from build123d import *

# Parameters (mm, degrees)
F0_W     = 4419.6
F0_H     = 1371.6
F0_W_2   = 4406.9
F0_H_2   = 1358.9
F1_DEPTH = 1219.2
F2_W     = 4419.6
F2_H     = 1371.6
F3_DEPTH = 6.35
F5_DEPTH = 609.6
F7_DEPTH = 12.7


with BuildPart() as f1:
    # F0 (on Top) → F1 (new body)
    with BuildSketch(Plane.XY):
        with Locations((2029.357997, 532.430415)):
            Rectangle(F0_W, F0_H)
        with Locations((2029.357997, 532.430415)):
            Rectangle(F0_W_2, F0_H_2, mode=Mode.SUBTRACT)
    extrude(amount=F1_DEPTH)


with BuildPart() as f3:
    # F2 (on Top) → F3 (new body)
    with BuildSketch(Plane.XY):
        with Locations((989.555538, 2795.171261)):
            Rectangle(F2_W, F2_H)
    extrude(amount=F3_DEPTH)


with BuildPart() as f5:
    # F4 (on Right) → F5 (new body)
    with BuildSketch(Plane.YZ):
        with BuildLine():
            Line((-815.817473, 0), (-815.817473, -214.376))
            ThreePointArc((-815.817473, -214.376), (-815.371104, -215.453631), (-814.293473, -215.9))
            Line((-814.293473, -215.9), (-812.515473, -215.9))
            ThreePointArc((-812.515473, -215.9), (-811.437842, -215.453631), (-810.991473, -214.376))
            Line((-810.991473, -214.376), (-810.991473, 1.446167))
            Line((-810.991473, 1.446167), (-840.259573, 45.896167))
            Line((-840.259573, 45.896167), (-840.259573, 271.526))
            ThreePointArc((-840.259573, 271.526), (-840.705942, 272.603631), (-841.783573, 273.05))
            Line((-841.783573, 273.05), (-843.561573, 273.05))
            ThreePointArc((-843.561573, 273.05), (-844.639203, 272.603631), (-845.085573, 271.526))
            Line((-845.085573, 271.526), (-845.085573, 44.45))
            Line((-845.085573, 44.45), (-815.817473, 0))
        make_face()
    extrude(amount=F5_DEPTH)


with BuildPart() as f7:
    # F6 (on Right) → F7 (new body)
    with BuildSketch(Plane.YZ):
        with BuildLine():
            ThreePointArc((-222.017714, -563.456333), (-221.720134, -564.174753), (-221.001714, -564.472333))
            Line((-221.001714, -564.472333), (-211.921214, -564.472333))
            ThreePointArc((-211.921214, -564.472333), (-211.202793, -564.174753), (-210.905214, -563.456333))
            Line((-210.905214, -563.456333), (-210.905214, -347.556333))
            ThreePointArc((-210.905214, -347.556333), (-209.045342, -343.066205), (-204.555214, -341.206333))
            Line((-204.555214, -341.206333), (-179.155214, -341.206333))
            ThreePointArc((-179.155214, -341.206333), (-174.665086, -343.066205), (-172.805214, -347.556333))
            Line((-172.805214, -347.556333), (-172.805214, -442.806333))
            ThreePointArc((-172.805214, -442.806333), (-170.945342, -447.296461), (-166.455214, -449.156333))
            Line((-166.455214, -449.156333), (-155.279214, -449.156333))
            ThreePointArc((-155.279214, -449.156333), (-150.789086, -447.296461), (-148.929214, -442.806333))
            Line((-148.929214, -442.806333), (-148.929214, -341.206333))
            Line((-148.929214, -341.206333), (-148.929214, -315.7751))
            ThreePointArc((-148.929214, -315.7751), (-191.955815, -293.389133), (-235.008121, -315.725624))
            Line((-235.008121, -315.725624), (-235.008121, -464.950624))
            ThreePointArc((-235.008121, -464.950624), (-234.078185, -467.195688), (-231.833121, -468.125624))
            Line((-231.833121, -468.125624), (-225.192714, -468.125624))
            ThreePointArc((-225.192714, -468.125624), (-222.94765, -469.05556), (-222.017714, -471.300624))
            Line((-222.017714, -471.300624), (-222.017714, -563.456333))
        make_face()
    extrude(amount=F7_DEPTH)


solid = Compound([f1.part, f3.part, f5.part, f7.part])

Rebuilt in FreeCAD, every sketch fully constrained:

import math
import FreeCAD as App
import Part
import Sketcher
Q = App.Units.Quantity


def add_polygon(sketch, points):
    """Adds a closed chain of lines whose ends are joined by coincident constraints."""
    first, n = sketch.GeometryCount, len(points)
    for a, b in zip(points, points[1:] + points[:1]):
        sketch.addGeometry(Part.LineSegment(App.Vector(*a, 0), App.Vector(*b, 0)), False)
    for i in range(n):
        sketch.addConstraint(Sketcher.Constraint("Coincident", first + i, 2, first + (i + 1) % n, 1))

doc = App.newDocument("Part")
body = doc.addObject("PartDesign::Body", "Body")

# Sketch on XY plane
sketch1 = body.newObject("Sketcher::SketchObject", "Sketch")
sketch1.AttachmentSupport = (doc.getObject("XY_Plane"), [""])
sketch1.MapMode = "FlatFace"
add_polygon(sketch1, [(-180, 1218), (-180, -153), (4239, -153), (4239, 1218)])  # lines 0-3
add_polygon(sketch1, [(4233, -147), (-174, -147), (-174, 1212), (4233, 1212)])  # lines 4-7
sketch1.addConstraint(Sketcher.Constraint("Vertical", 0))
sketch1.addConstraint(Sketcher.Constraint("Horizontal", 1))
sketch1.addConstraint(Sketcher.Constraint("Vertical", 2))
sketch1.addConstraint(Sketcher.Constraint("Horizontal", 3))
sketch1.addConstraint(Sketcher.Constraint("Horizontal", 4))
sketch1.addConstraint(Sketcher.Constraint("Vertical", 5))
sketch1.addConstraint(Sketcher.Constraint("Horizontal", 6))
sketch1.addConstraint(Sketcher.Constraint("Vertical", 7))
sketch1.addConstraint(Sketcher.Constraint("DistanceX", 1, 1, 1, 2, Q("174 in")))
sketch1.addConstraint(Sketcher.Constraint("DistanceY", 0, 2, 0, 1, Q("54 in")))
sketch1.addConstraint(Sketcher.Constraint("DistanceX", 4, 2, 4, 1, Q("173.5 in")))
sketch1.addConstraint(Sketcher.Constraint("DistanceY", 5, 1, 5, 2, Q("53.5 in")))
sketch1.addConstraint(Sketcher.Constraint("DistanceX", 0, 2, 4, 2, Q("0.25 in")))
sketch1.addConstraint(Sketcher.Constraint("DistanceY", 0, 2, 4, 2, Q("0.25 in")))
sketch1.addConstraint(Sketcher.Constraint("DistanceX", 0, 2, -1, 1, 180.442003))
sketch1.addConstraint(Sketcher.Constraint("DistanceY", 0, 2, -1, 1, 153.369585))
pad1 = body.newObject("PartDesign::Pad", "Pad")
pad1.Profile = sketch1
pad1.Length = Q("48 in")
body2 = doc.addObject("PartDesign::Body", "Body001")

# Sketch on XY plane
sketch2 = body2.newObject("Sketcher::SketchObject", "Sketch001")
sketch2.AttachmentSupport = (doc.getObject("XY_Plane001"), [""])
sketch2.MapMode = "FlatFace"
add_polygon(sketch2, [(-1220, 3481), (-1220, 2109), (3199, 2109), (3199, 3481)])  # lines 0-3
sketch2.addConstraint(Sketcher.Constraint("Vertical", 0))
sketch2.addConstraint(Sketcher.Constraint("Horizontal", 1))
sketch2.addConstraint(Sketcher.Constraint("Vertical", 2))
sketch2.addConstraint(Sketcher.Constraint("Horizontal", 3))
sketch2.addConstraint(Sketcher.Constraint("DistanceX", 1, 1, 1, 2, Q("174 in")))
sketch2.addConstraint(Sketcher.Constraint("DistanceY", 0, 2, 0, 1, Q("54 in")))
sketch2.addConstraint(Sketcher.Constraint("DistanceY", -1, 1, 0, 2, 2109.371261))
sketch2.addConstraint(Sketcher.Constraint("DistanceX", 0, 2, -1, 1, 1220.244462))
pad2 = body2.newObject("PartDesign::Pad", "Pad001")
pad2.Profile = sketch2
pad2.Length = Q("0.25 in")
body3 = doc.addObject("PartDesign::Body", "Body002")

# Sketch on YZ plane
sketch3 = body3.newObject("Sketcher::SketchObject", "Sketch002")
sketch3.AttachmentSupport = (doc.getObject("YZ_Plane002"), [""])
sketch3.MapMode = "FlatFace"
sketch3.addGeometry(Part.LineSegment(App.Vector(-815.8, 0, 0), App.Vector(-815.8, -214.4, 0)), False)
sketch3.addGeometry(Part.ArcOfCircle(Part.Circle(App.Vector(-814.3, -214.4, 0), App.Vector(0, 0, 1), 1.5), math.radians(180), math.radians(270)), False)
sketch3.addGeometry(Part.LineSegment(App.Vector(-814.3, -215.9, 0), App.Vector(-812.5, -215.9, 0)), False)
sketch3.addGeometry(Part.ArcOfCircle(Part.Circle(App.Vector(-812.5, -214.4, 0), App.Vector(0, 0, 1), 1.5), math.radians(-90), math.radians(0)), False)
sketch3.addGeometry(Part.LineSegment(App.Vector(-811, -214.4, 0), App.Vector(-811, 1.4, 0)), False)
sketch3.addGeometry(Part.LineSegment(App.Vector(-811, 1.4, 0), App.Vector(-840.3, 45.9, 0)), False)
sketch3.addGeometry(Part.LineSegment(App.Vector(-840.3, 45.9, 0), App.Vector(-840.3, 271.5, 0)), False)
sketch3.addGeometry(Part.ArcOfCircle(Part.Circle(App.Vector(-841.8, 271.5, 0), App.Vector(0, 0, 1), 1.5), math.radians(0), math.radians(90)), False)
sketch3.addGeometry(Part.LineSegment(App.Vector(-841.8, 273.1, 0), App.Vector(-843.6, 273.1, 0)), False)
sketch3.addGeometry(Part.ArcOfCircle(Part.Circle(App.Vector(-843.6, 271.5, 0), App.Vector(0, 0, 1), 1.5), math.radians(90), math.radians(180)), False)
sketch3.addGeometry(Part.LineSegment(App.Vector(-845.1, 271.5, 0), App.Vector(-845.1, 44.5, 0)), False)
sketch3.addGeometry(Part.LineSegment(App.Vector(-845.1, 44.5, 0), App.Vector(-815.8, 0, 0)), False)
sketch3.addConstraint(Sketcher.Constraint("Tangent", 0, 2, 1, 1))
sketch3.addConstraint(Sketcher.Constraint("Tangent", 1, 2, 2, 1))
sketch3.addConstraint(Sketcher.Constraint("Tangent", 2, 2, 3, 1))
sketch3.addConstraint(Sketcher.Constraint("Tangent", 3, 2, 4, 1))
sketch3.addConstraint(Sketcher.Constraint("Coincident", 4, 2, 5, 1))
sketch3.addConstraint(Sketcher.Constraint("Coincident", 5, 2, 6, 1))
sketch3.addConstraint(Sketcher.Constraint("Tangent", 6, 2, 7, 1))
sketch3.addConstraint(Sketcher.Constraint("Tangent", 7, 2, 8, 1))
sketch3.addConstraint(Sketcher.Constraint("Tangent", 8, 2, 9, 1))
sketch3.addConstraint(Sketcher.Constraint("Tangent", 9, 2, 10, 1))
sketch3.addConstraint(Sketcher.Constraint("Coincident", 10, 2, 11, 1))
sketch3.addConstraint(Sketcher.Constraint("Coincident", 11, 2, 0, 1))
sketch3.addConstraint(Sketcher.Constraint("Vertical", 0))
sketch3.addConstraint(Sketcher.Constraint("Horizontal", 2))
sketch3.addConstraint(Sketcher.Constraint("Vertical", 4))
sketch3.addConstraint(Sketcher.Constraint("Vertical", 6))
sketch3.addConstraint(Sketcher.Constraint("Horizontal", 8))
sketch3.addConstraint(Sketcher.Constraint("Vertical", 10))
sketch3.addConstraint(Sketcher.Constraint("Equal", 1, 3))
sketch3.addConstraint(Sketcher.Constraint("Equal", 3, 7))
sketch3.addConstraint(Sketcher.Constraint("Equal", 7, 9))
sketch3.addConstraint(Sketcher.Constraint("PointOnObject", 11, 2, -1))
sketch3.addConstraint(Sketcher.Constraint("Parallel", 5, 11))
sketch3.addConstraint(Sketcher.Constraint("Equal", 2, 8))
sketch3.addConstraint(Sketcher.Constraint("Radius", 1, Q("0.06 in")))
sketch3.addConstraint(Sketcher.Constraint("DistanceX", 2, 1, 2, 2, Q("0.07 in")))
sketch3.addConstraint(Sketcher.Constraint("DistanceY", 0, 2, 0, 1, Q("8.44 in")))
sketch3.addConstraint(Sketcher.Constraint("DistanceY", 10, 2, 10, 1, Q("8.94 in")))
sketch3.addConstraint(Sketcher.Constraint("DistanceY", -1, 1, 7, 3, Q("10.69 in")))
sketch3.addConstraint(Sketcher.Constraint("DistanceX", 7, 3, 1, 3, 27.490098))
sketch3.addConstraint(Sketcher.Constraint("DistanceY", 4, 1, 4, 2, 215.822167))
sketch3.addConstraint(Sketcher.Constraint("DistanceX", 1, 3, -1, 1, 814.293474))
pad3 = body3.newObject("PartDesign::Pad", "Pad002")
pad3.Profile = sketch3
pad3.Length = Q("24 in")
body4 = doc.addObject("PartDesign::Body", "Body003")

# Sketch on YZ plane
sketch4 = body4.newObject("Sketcher::SketchObject", "Sketch003")
sketch4.AttachmentSupport = (doc.getObject("YZ_Plane003"), [""])
sketch4.MapMode = "FlatFace"
sketch4.addGeometry(Part.ArcOfCircle(Part.Circle(App.Vector(-221, -563.5, 0), App.Vector(0, 0, 1), 1), math.radians(-180), math.radians(-90)), False)
sketch4.addGeometry(Part.LineSegment(App.Vector(-221, -564.5, 0), App.Vector(-211.9, -564.5, 0)), False)
sketch4.addGeometry(Part.ArcOfCircle(Part.Circle(App.Vector(-211.9, -563.5, 0), App.Vector(0, 0, 1), 1), math.radians(-90), math.radians(0)), False)
sketch4.addGeometry(Part.LineSegment(App.Vector(-210.9, -563.5, 0), App.Vector(-210.9, -347.6, 0)), False)
sketch4.addGeometry(Part.ArcOfCircle(Part.Circle(App.Vector(-204.6, -347.6, 0), App.Vector(0, 0, 1), 6.4), math.radians(90), math.radians(180)), False)
sketch4.addGeometry(Part.LineSegment(App.Vector(-204.6, -341.2, 0), App.Vector(-179.2, -341.2, 0)), False)
sketch4.addGeometry(Part.ArcOfCircle(Part.Circle(App.Vector(-179.2, -347.6, 0), App.Vector(0, 0, 1), 6.4), math.radians(0), math.radians(90)), False)
sketch4.addGeometry(Part.LineSegment(App.Vector(-172.8, -347.6, 0), App.Vector(-172.8, -442.8, 0)), False)
sketch4.addGeometry(Part.ArcOfCircle(Part.Circle(App.Vector(-166.5, -442.8, 0), App.Vector(0, 0, 1), 6.4), math.radians(-180), math.radians(-90)), False)
sketch4.addGeometry(Part.LineSegment(App.Vector(-166.5, -449.2, 0), App.Vector(-155.3, -449.2, 0)), False)
sketch4.addGeometry(Part.ArcOfCircle(Part.Circle(App.Vector(-155.3, -442.8, 0), App.Vector(0, 0, 1), 6.4), math.radians(-90), math.radians(0)), False)
sketch4.addGeometry(Part.LineSegment(App.Vector(-148.9, -442.8, 0), App.Vector(-148.9, -315.8, 0)), False)
sketch4.addGeometry(Part.ArcOfCircle(Part.Circle(App.Vector(-192, -346, 0), App.Vector(0, 0, 1), 52.6), math.radians(35), math.radians(145)), False)
sketch4.addGeometry(Part.LineSegment(App.Vector(-235, -315.7, 0), App.Vector(-235, -465, 0)), False)
sketch4.addGeometry(Part.ArcOfCircle(Part.Circle(App.Vector(-231.8, -465, 0), App.Vector(0, 0, 1), 3.2), math.radians(-180), math.radians(-90)), False)
sketch4.addGeometry(Part.LineSegment(App.Vector(-231.8, -468.1, 0), App.Vector(-225.2, -468.1, 0)), False)
sketch4.addGeometry(Part.ArcOfCircle(Part.Circle(App.Vector(-225.2, -471.3, 0), App.Vector(0, 0, 1), 3.2), math.radians(0), math.radians(90)), False)
sketch4.addGeometry(Part.LineSegment(App.Vector(-222, -471.3, 0), App.Vector(-222, -563.5, 0)), False)
sketch4.addConstraint(Sketcher.Constraint("Tangent", 0, 2, 1, 1))
sketch4.addConstraint(Sketcher.Constraint("Tangent", 1, 2, 2, 1))
sketch4.addConstraint(Sketcher.Constraint("Tangent", 2, 2, 3, 1))
sketch4.addConstraint(Sketcher.Constraint("Tangent", 3, 2, 4, 2))
sketch4.addConstraint(Sketcher.Constraint("Tangent", 4, 1, 5, 1))
sketch4.addConstraint(Sketcher.Constraint("Tangent", 5, 2, 6, 2))
sketch4.addConstraint(Sketcher.Constraint("Tangent", 6, 1, 7, 1))
sketch4.addConstraint(Sketcher.Constraint("Tangent", 7, 2, 8, 1))
sketch4.addConstraint(Sketcher.Constraint("Tangent", 8, 2, 9, 1))
sketch4.addConstraint(Sketcher.Constraint("Tangent", 9, 2, 10, 1))
sketch4.addConstraint(Sketcher.Constraint("Tangent", 10, 2, 11, 1))
sketch4.addConstraint(Sketcher.Constraint("Coincident", 11, 2, 12, 1))
sketch4.addConstraint(Sketcher.Constraint("Coincident", 12, 2, 13, 1))
sketch4.addConstraint(Sketcher.Constraint("Tangent", 13, 2, 14, 1))
sketch4.addConstraint(Sketcher.Constraint("Tangent", 14, 2, 15, 1))
sketch4.addConstraint(Sketcher.Constraint("Tangent", 15, 2, 16, 2))
sketch4.addConstraint(Sketcher.Constraint("Tangent", 16, 1, 17, 1))
sketch4.addConstraint(Sketcher.Constraint("Tangent", 17, 2, 0, 1))
sketch4.addConstraint(Sketcher.Constraint("Horizontal", 1))
sketch4.addConstraint(Sketcher.Constraint("Vertical", 3))
sketch4.addConstraint(Sketcher.Constraint("Horizontal", 5))
sketch4.addConstraint(Sketcher.Constraint("Vertical", 7))
sketch4.addConstraint(Sketcher.Constraint("Horizontal", 9))
sketch4.addConstraint(Sketcher.Constraint("Vertical", 11))
sketch4.addConstraint(Sketcher.Constraint("Vertical", 13))
sketch4.addConstraint(Sketcher.Constraint("Horizontal", 15))
sketch4.addConstraint(Sketcher.Constraint("Vertical", 17))
sketch4.addConstraint(Sketcher.Constraint("Equal", 0, 2))
sketch4.addConstraint(Sketcher.Constraint("Equal", 4, 6))
sketch4.addConstraint(Sketcher.Constraint("Equal", 6, 8))
sketch4.addConstraint(Sketcher.Constraint("Equal", 8, 10))
sketch4.addConstraint(Sketcher.Constraint("Equal", 14, 16))
sketch4.addConstraint(Sketcher.Constraint("DistanceX", 5, 1, 5, 2, Q("1 in")))
sketch4.addConstraint(Sketcher.Constraint("Radius", 0, Q("0.0400001 in")))
sketch4.addConstraint(Sketcher.Constraint("Radius", 4, Q("0.25 in")))
sketch4.addConstraint(Sketcher.Constraint("DistanceY", 3, 1, 3, 2, Q("8.5 in")))
sketch4.addConstraint(Sketcher.Constraint("Radius", 14, Q("0.125 in")))
sketch4.addConstraint(Sketcher.Constraint("DistanceY", 8, 3, 4, 1, Q("4 in")))
sketch4.addConstraint(Sketcher.Constraint("DistanceX", 9, 1, 9, 2, Q("0.44 in")))
sketch4.addConstraint(Sketcher.Constraint("DistanceY", 13, 2, 13, 1, Q("5.875 in")))
sketch4.addConstraint(Sketcher.Constraint("DistanceX", 1, 1, 1, 2, Q("0.3575 in")))
sketch4.addConstraint(Sketcher.Constraint("Radius", 12, 52.600407))
sketch4.addConstraint(Sketcher.Constraint("DistanceY", 17, 2, 17, 1, 92.155709))
sketch4.addConstraint(Sketcher.Constraint("DistanceY", 11, 2, -1, 1, 315.7751))
sketch4.addConstraint(Sketcher.Constraint("DistanceY", 4, 3, 12, 3, 1.566802))
sketch4.addConstraint(Sketcher.Constraint("DistanceX", 15, 1, 15, 2, 6.640407))
sketch4.addConstraint(Sketcher.Constraint("DistanceX", 12, 3, -1, 1, 191.986048))
pad4 = body4.newObject("PartDesign::Pad", "Pad003")
pad4.Profile = sketch4
pad4.Length = Q("0.5 in")

doc.recompute()
